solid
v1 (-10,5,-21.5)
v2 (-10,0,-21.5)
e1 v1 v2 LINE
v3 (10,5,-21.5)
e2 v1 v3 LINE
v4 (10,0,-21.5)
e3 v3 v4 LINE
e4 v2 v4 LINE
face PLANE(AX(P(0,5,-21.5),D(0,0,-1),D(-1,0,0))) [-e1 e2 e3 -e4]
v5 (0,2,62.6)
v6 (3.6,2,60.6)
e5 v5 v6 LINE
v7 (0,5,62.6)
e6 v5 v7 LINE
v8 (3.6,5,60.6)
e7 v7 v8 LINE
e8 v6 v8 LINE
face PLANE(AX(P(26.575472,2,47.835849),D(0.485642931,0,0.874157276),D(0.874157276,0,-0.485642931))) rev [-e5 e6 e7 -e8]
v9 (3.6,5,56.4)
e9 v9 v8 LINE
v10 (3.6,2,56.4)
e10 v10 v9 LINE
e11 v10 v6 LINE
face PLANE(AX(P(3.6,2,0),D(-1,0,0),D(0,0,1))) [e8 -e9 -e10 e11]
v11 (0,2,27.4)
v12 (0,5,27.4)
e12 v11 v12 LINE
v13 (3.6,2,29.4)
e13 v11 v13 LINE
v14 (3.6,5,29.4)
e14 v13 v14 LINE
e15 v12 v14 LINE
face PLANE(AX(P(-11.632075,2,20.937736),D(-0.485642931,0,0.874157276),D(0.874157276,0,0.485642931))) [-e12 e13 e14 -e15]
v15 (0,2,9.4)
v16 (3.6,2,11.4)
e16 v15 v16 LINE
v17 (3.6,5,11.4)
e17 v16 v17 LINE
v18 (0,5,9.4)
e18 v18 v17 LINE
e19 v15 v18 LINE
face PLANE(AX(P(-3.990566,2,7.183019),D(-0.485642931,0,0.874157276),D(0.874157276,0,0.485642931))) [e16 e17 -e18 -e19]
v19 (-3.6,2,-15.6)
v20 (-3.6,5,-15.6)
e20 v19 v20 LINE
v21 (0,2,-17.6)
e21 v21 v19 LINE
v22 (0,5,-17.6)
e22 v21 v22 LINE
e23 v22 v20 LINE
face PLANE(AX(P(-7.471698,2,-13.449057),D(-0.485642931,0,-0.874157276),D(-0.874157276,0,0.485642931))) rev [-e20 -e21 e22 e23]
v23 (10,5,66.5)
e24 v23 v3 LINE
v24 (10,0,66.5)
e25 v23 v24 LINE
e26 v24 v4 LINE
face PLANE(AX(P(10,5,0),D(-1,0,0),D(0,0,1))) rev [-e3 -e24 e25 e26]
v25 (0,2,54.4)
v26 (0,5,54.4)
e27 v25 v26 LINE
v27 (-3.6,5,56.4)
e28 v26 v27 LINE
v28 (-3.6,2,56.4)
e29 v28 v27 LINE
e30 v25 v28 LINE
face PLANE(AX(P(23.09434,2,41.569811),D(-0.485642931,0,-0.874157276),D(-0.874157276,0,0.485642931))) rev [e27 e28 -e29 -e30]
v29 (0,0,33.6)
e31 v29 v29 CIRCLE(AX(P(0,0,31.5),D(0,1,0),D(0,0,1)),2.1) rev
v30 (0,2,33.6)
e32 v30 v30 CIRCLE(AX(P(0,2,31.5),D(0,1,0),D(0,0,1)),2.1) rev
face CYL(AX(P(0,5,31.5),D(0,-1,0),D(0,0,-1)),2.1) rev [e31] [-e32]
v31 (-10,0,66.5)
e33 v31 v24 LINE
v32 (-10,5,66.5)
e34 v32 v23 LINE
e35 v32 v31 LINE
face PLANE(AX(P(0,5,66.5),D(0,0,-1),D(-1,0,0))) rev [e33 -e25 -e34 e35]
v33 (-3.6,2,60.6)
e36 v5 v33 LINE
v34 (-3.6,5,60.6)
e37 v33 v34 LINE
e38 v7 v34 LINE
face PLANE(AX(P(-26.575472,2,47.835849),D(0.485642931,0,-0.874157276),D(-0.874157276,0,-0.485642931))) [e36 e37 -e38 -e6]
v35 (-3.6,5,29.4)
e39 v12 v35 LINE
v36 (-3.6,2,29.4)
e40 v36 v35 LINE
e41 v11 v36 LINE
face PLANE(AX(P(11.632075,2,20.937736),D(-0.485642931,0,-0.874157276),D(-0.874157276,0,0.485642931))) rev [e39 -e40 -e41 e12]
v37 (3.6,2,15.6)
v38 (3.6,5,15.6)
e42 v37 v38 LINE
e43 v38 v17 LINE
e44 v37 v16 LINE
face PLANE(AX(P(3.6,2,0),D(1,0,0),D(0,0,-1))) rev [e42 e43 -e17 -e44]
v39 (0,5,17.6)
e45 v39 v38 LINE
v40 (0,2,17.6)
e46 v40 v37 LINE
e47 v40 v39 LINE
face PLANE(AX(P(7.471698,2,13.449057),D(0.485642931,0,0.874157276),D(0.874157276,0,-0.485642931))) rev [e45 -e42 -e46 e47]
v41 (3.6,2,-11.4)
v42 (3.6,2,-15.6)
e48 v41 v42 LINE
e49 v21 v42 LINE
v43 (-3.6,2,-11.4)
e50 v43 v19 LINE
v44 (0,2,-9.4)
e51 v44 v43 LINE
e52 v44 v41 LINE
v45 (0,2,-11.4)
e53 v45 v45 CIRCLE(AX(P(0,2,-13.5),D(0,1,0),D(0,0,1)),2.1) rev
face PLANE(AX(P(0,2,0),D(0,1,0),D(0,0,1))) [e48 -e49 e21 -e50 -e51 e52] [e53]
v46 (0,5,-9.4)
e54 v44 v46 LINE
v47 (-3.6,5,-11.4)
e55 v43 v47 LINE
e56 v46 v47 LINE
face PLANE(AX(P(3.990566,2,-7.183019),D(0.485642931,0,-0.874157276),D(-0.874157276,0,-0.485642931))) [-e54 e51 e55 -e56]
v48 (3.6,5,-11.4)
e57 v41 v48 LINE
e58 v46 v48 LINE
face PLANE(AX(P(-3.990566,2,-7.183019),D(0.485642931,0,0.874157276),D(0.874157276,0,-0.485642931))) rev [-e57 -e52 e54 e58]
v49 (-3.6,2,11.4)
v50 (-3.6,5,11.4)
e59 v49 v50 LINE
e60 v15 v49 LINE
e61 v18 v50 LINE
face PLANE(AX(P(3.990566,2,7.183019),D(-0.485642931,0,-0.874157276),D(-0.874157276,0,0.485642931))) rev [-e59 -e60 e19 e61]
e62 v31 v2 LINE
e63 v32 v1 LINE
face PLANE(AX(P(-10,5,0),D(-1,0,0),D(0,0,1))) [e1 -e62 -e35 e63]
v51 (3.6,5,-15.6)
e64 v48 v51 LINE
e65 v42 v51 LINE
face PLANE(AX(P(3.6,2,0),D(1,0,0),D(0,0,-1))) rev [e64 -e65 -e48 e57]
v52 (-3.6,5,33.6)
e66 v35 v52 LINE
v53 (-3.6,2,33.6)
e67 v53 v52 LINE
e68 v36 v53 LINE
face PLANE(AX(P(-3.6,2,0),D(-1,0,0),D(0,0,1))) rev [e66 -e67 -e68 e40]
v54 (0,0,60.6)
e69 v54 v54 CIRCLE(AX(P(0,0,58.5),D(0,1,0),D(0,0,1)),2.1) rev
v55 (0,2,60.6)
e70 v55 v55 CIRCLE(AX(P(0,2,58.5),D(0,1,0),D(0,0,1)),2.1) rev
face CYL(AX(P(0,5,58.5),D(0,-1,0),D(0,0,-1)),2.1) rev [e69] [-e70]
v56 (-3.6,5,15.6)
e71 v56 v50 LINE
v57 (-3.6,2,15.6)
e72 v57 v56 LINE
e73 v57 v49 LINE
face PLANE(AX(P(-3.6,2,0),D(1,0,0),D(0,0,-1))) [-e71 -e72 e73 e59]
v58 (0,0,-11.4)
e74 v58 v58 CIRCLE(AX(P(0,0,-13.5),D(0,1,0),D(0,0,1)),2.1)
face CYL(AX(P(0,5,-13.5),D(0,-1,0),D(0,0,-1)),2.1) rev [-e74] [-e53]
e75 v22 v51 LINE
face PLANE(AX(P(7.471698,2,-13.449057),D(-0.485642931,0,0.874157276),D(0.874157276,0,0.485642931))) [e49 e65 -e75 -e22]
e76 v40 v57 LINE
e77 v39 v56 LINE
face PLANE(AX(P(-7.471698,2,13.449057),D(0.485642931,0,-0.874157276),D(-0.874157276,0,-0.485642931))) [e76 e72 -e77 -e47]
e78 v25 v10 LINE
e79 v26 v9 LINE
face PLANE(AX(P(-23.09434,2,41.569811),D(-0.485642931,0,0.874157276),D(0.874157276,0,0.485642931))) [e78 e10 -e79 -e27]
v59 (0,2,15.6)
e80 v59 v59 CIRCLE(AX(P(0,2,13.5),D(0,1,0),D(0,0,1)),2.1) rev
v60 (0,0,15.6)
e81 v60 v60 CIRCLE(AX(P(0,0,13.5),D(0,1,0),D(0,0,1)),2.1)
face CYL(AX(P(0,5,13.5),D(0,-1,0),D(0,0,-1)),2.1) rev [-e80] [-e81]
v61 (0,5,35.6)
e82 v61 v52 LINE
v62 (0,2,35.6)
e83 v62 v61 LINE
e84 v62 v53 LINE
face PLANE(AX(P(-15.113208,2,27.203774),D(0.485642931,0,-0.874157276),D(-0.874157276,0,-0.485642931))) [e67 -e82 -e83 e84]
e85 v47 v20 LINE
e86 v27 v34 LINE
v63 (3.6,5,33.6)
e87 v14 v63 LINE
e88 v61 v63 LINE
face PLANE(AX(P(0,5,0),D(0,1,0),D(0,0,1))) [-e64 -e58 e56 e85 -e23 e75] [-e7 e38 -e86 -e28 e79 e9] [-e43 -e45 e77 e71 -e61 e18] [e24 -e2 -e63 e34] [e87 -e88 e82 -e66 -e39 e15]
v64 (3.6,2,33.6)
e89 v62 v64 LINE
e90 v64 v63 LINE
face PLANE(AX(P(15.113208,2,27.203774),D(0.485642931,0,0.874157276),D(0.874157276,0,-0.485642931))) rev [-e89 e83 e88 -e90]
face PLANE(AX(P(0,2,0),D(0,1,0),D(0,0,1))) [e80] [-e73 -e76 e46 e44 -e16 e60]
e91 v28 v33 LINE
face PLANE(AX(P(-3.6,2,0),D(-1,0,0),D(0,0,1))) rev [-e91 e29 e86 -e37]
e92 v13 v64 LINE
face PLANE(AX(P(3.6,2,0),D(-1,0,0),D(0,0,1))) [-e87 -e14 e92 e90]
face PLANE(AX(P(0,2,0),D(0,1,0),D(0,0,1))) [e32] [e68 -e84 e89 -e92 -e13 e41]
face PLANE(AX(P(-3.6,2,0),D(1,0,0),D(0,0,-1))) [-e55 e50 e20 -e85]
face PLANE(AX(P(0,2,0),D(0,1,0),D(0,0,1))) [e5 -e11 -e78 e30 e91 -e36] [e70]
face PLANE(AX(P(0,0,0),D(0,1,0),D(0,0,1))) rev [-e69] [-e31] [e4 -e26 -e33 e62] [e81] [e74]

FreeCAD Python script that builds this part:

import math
import FreeCAD as App
import Part
import Sketcher


def add_polygon(sketch, points):
    """Adds a closed chain of lines whose ends are joined by coincident constraints."""
    first, n = sketch.GeometryCount, len(points)
    for a, b in zip(points, points[1:] + points[:1]):
        sketch.addGeometry(Part.LineSegment(App.Vector(*a, 0), App.Vector(*b, 0)), False)
    for i in range(n):
        sketch.addConstraint(Sketcher.Constraint("Coincident", first + i, 2, first + (i + 1) % n, 1))

doc = App.newDocument("Part")
body = doc.addObject("PartDesign::Body", "Body")

sketch1 = doc.addObject("Sketcher::SketchObject", "Sketch")
body.addObject(sketch1)
sketch1.AttachmentSupport = (doc.XZ_Plane, [""])
sketch1.MapMode = "FlatFace"
add_polygon(sketch1, [(-10, -21.5), (-10, 66.5), (10, 66.5), (10, -21.5)])
sketch1.addGeometry(Part.Circle(App.Vector(0, 58.5, 0), App.Vector(0, 0, 1), 2.1), False)
sketch1.addGeometry(Part.Circle(App.Vector(0, 31.5, 0), App.Vector(0, 0, 1), 2.1), False)
sketch1.addGeometry(Part.Circle(App.Vector(0, 13.5, 0), App.Vector(0, 0, 1), 2.1), False)
sketch1.addGeometry(Part.Circle(App.Vector(0, -13.5, 0), App.Vector(0, 0, 1), 2.1), False)
sketch1.addConstraint(Sketcher.Constraint("Vertical", 0))
sketch1.addConstraint(Sketcher.Constraint("Horizontal", 1))
sketch1.addConstraint(Sketcher.Constraint("Vertical", 2))
sketch1.addConstraint(Sketcher.Constraint("Horizontal", 3))
sketch1.addConstraint(Sketcher.Constraint("Equal", 4, 5))
sketch1.addConstraint(Sketcher.Constraint("Equal", 5, 6))
sketch1.addConstraint(Sketcher.Constraint("Equal", 6, 7))
sketch1.addConstraint(Sketcher.Constraint("Symmetric", 6, 3, 7, 3, -1, 1))
sketch1.addConstraint(Sketcher.Constraint("PointOnObject", 4, 3, -2))
sketch1.addConstraint(Sketcher.Constraint("PointOnObject", 5, 3, -2))
sketch1.addConstraint(Sketcher.Constraint("PointOnObject", 6, 3, -2))
sketch1.addConstraint(Sketcher.Constraint("Diameter", 4, 4.2))
sketch1.addConstraint(Sketcher.Constraint("DistanceX", 1, 1, 1, 2, 20.0))
sketch1.addConstraint(Sketcher.Constraint("DistanceY", 0, 1, 0, 2, 88.0))
sketch1.addConstraint(Sketcher.Constraint("DistanceX", 0, 2, -1, 1, 10.0))
sketch1.addConstraint(Sketcher.Constraint("DistanceY", 5, 3, 4, 3, 27.0))
sketch1.addConstraint(Sketcher.Constraint("DistanceY", 6, 3, 5, 3, 18.0))
sketch1.addConstraint(Sketcher.Constraint("DistanceY", 7, 3, 6, 3, 27.0))
sketch1.addConstraint(Sketcher.Constraint("DistanceY", 4, 3, 0, 2, 8.0))
pad1 = doc.addObject("PartDesign::Pad", "Pad")
body.addObject(pad1)
pad1.Profile = sketch1
pad1.Length = 5
pad1.Reversed = True

sketch2 = doc.addObject("Sketcher::SketchObject", "Sketch001")
body.addObject(sketch2)
sketch2.AttachmentSupport = (doc.XZ_Plane, [""])
sketch2.MapMode = "FlatFace"
sketch2.AttachmentOffset = App.Placement(App.Vector(0, 0, -5), App.Rotation())
add_polygon(sketch2, [(3.6, -11.4), (3.6, -15.6), (0, -17.6), (-3.6, -15.6), (-3.6, -11.4), (0, -9.4)])
sketch2.addGeometry(Part.ArcOfCircle(Part.Circle(App.Vector(0, -13.5, 0), App.Vector(0, 0, 1), 2.1), math.radians(0), math.radians(90)), False)
sketch2.addGeometry(Part.ArcOfCircle(Part.Circle(App.Vector(0, -13.5, 0), App.Vector(0, 0, 1), 2.1), math.radians(90), math.radians(270)), False)
sketch2.addGeometry(Part.ArcOfCircle(Part.Circle(App.Vector(0, -13.5, 0), App.Vector(0, 0, 1), 2.1), math.radians(-90), math.radians(0)), False)
add_polygon(sketch2, [(3.6, 15.6), (3.6, 11.4), (0, 9.4), (-3.6, 11.4), (-3.6, 15.6), (0, 17.6)])
sketch2.addGeometry(Part.ArcOfCircle(Part.Circle(App.Vector(0, 13.5, 0), App.Vector(0, 0, 1), 2.1), math.radians(0), math.radians(90)), False)
sketch2.addGeometry(Part.ArcOfCircle(Part.Circle(App.Vector(0, 13.5, 0), App.Vector(0, 0, 1), 2.1), math.radians(90), math.radians(270)), False)
sketch2.addGeometry(Part.ArcOfCircle(Part.Circle(App.Vector(0, 13.5, 0), App.Vector(0, 0, 1), 2.1), math.radians(-90), math.radians(0)), False)
add_polygon(sketch2, [(-3.6, 33.6), (0, 35.6), (3.6, 33.6), (3.6, 29.4), (0, 27.4), (-3.6, 29.4)])
sketch2.addGeometry(Part.Circle(App.Vector(0, 31.5, 0), App.Vector(0, 0, 1), 2.1), False)
add_polygon(sketch2, [(-3.6, 60.6), (0, 62.6), (3.6, 60.6), (3.6, 56.4), (0, 54.4), (-3.6, 56.4)])
sketch2.addGeometry(Part.Circle(App.Vector(0, 58.5, 0), App.Vector(0, 0, 1), 2.1), False)
sketch2.addConstraint(Sketcher.Constraint("Tangent", 6, 2, 7, 1))
sketch2.addConstraint(Sketcher.Constraint("Tangent", 7, 2, 8, 1))
sketch2.addConstraint(Sketcher.Constraint("Tangent", 8, 2, 6, 1))
sketch2.addConstraint(Sketcher.Constraint("Tangent", 15, 2, 16, 1))
sketch2.addConstraint(Sketcher.Constraint("Tangent", 16, 2, 17, 1))
sketch2.addConstraint(Sketcher.Constraint("Tangent", 17, 2, 15, 1))
sketch2.addConstraint(Sketcher.Constraint("Vertical", 0))
sketch2.addConstraint(Sketcher.Constraint("Vertical", 3))
sketch2.addConstraint(Sketcher.Constraint("Vertical", 9))
sketch2.addConstraint(Sketcher.Constraint("Vertical", 12))
sketch2.addConstraint(Sketcher.Constraint("Vertical", 20))
sketch2.addConstraint(Sketcher.Constraint("Vertical", 23))
sketch2.addConstraint(Sketcher.Constraint("Vertical", 27))
sketch2.addConstraint(Sketcher.Constraint("Vertical", 30))
sketch2.addConstraint(Sketcher.Constraint("Equal", 8, 15))
sketch2.addConstraint(Sketcher.Constraint("Equal", 17, 24))
sketch2.addConstraint(Sketcher.Constraint("Equal", 24, 31))
sketch2.addConstraint(Sketcher.Constraint("Symmetric", 6, 3, 15, 3, -1, 1))
sketch2.addConstraint(Sketcher.Constraint("Symmetric", 3, 2, 9, 2, -1, 1))
sketch2.addConstraint(Sketcher.Constraint("Symmetric", 4, 2, 10, 2, -1, 1))
sketch2.addConstraint(Sketcher.Constraint("Symmetric", 5, 2, 11, 2, -1, 1))
sketch2.addConstraint(Sketcher.Constraint("Symmetric", 1, 2, 13, 2, -1, 1))
sketch2.addConstraint(Sketcher.Constraint("Symmetric", 0, 2, 2, 2, -2))
sketch2.addConstraint(Sketcher.Constraint("Symmetric", 20, 2, 22, 2, -2))
sketch2.addConstraint(Sketcher.Constraint("Symmetric", 27, 2, 29, 2, -2))
sketch2.addConstraint(Sketcher.Constraint("Symmetric", 8, 2, 17, 2, -1))
sketch2.addConstraint(Sketcher.Constraint("PointOnObject", 24, 3, -2))
sketch2.addConstraint(Sketcher.Constraint("PointOnObject", 31, 3, -2))
sketch2.addConstraint(Sketcher.Constraint("PointOnObject", 1, 2, -2))
sketch2.addConstraint(Sketcher.Constraint("PointOnObject", 4, 2, -2))
sketch2.addConstraint(Sketcher.Constraint("PointOnObject", 6, 2, -2))
sketch2.addConstraint(Sketcher.Constraint("PointOnObject", 7, 2, -2))
sketch2.addConstraint(Sketcher.Constraint("PointOnObject", 15, 2, -2))
sketch2.addConstraint(Sketcher.Constraint("PointOnObject", 16, 2, -2))
sketch2.addConstraint(Sketcher.Constraint("PointOnObject", 18, 2, -2))
sketch2.addConstraint(Sketcher.Constraint("PointOnObject", 21, 2, -2))
sketch2.addConstraint(Sketcher.Constraint("PointOnObject", 25, 2, -2))
sketch2.addConstraint(Sketcher.Constraint("PointOnObject", 28, 2, -2))
sketch2.addConstraint(Sketcher.Constraint("Parallel", 1, 4))
sketch2.addConstraint(Sketcher.Constraint("Parallel", 2, 5))
sketch2.addConstraint(Sketcher.Constraint("Parallel", 10, 13))
sketch2.addConstraint(Sketcher.Constraint("Parallel", 11, 14))
sketch2.addConstraint(Sketcher.Constraint("Parallel", 13, 18))
sketch2.addConstraint(Sketcher.Constraint("Parallel", 14, 19))
sketch2.addConstraint(Sketcher.Constraint("Parallel", 18, 21))
sketch2.addConstraint(Sketcher.Constraint("Parallel", 21, 25))
sketch2.addConstraint(Sketcher.Constraint("Parallel", 22, 26))
sketch2.addConstraint(Sketcher.Constraint("Parallel", 25, 28))
sketch2.addConstraint(Sketcher.Constraint("Horizontal", 5, 2, 6, 2))
sketch2.addConstraint(Sketcher.Constraint("Horizontal", 2, 2, 7, 2))
sketch2.addConstraint(Sketcher.Constraint("Horizontal", 7, 3, 8, 2))
sketch2.addConstraint(Sketcher.Constraint("Vertical", 14, 2, 19, 2))
sketch2.addConstraint(Sketcher.Constraint("Vertical", 20, 2, 26, 2))
sketch2.addConstraint(Sketcher.Constraint("Equal", 12, 20))
sketch2.addConstraint(Sketcher.Constraint("Equal", 23, 27))
sketch2.addConstraint(Sketcher.Constraint("Diameter", 24, 4.2))
sketch2.addConstraint(Sketcher.Constraint("DistanceY", 8, 3, 15, 3, 27.0))
sketch2.addConstraint(Sketcher.Constraint("DistanceY", 17, 3, 24, 3, 18.0))
sketch2.addConstraint(Sketcher.Constraint("DistanceY", 24, 3, 31, 3, 27.0))
sketch2.addConstraint(Sketcher.Constraint("DistanceY", 1, 2, 0, 2, 2.0))
sketch2.addConstraint(Sketcher.Constraint("DistanceY", 13, 2, 18, 2, 18.0))
sketch2.addConstraint(Sketcher.Constraint("DistanceY", 18, 2, 25, 2, 27.0))
sketch2.addConstraint(Sketcher.Constraint("DistanceX", -1, 1, 0, 2, 3.6))
pocket1 = doc.addObject("PartDesign::Pocket", "Pocket")
body.addObject(pocket1)
pocket1.Profile = sketch2
pocket1.Length = 3
pocket1.Reversed = True

doc.recompute()
